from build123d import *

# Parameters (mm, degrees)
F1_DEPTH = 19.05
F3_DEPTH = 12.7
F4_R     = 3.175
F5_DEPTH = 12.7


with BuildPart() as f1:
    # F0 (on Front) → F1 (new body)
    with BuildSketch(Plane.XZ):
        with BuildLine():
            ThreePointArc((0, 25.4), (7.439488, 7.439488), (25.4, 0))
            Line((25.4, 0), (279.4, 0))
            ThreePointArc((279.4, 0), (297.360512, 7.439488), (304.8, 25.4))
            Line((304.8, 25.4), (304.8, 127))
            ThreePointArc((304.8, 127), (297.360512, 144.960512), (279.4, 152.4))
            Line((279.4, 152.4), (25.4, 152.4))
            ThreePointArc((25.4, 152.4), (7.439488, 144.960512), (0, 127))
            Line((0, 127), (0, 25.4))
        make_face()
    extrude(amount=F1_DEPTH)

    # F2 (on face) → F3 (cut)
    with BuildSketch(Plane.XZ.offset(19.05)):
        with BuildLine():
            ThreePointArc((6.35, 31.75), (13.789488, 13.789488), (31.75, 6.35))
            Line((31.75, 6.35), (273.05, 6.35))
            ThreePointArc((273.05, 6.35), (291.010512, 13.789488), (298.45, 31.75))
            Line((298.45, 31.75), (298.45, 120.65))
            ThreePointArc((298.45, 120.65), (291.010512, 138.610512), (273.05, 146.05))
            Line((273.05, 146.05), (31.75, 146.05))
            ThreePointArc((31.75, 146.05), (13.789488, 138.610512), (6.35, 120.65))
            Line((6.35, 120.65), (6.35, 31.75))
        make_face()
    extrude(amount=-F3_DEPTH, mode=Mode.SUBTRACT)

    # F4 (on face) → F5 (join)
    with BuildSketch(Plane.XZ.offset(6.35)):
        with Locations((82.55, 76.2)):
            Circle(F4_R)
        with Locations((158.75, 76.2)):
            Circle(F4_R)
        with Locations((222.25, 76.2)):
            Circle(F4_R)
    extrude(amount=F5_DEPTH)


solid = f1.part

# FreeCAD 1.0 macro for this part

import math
import FreeCAD as App
import Part
import Sketcher

V = App.Vector
Q = App.Units.Quantity

doc = App.newDocument("Part")
body = doc.addObject("PartDesign::Body", "Body")

# Sketch on XZ plane
sketch1 = body.newObject("Sketcher::SketchObject", "Sketch")
sketch1.AttachmentSupport = (doc.getObject("XZ_Plane"), [""])
sketch1.MapMode = "FlatFace"
sketch1.addGeometry(Part.ArcOfCircle(Part.Circle(V(25.400001, 25.400001, 0), V(0, 0, 1), 25.400001), math.radians(-179.999998), math.radians(-90.000002)), False)
sketch1.addGeometry(Part.LineSegment(V(25.4, 0, 0), V(279.4, 0, 0)), False)
sketch1.addGeometry(Part.ArcOfCircle(Part.Circle(V(279.399999, 25.400001, 0), V(0, 0, 1), 25.400001), math.radians(-89.999998), math.radians(-0.000002)), False)
sketch1.addGeometry(Part.LineSegment(V(304.8, 25.4, 0), V(304.8, 127, 0)), False)
sketch1.addGeometry(Part.ArcOfCircle(Part.Circle(V(279.399999, 126.999999, 0), V(0, 0, 1), 25.400001), math.radians(0.000002), math.radians(89.999998)), False)
sketch1.addGeometry(Part.LineSegment(V(279.4, 152.4, 0), V(25.4, 152.4, 0)), False)
sketch1.addGeometry(Part.ArcOfCircle(Part.Circle(V(25.400001, 126.999999, 0), V(0, 0, 1), 25.400001), math.radians(90.000002), math.radians(179.999998)), False)
sketch1.addGeometry(Part.LineSegment(V(0, 127, 0), V(0, 25.4, 0)), False)
sketch1.addConstraint(Sketcher.Constraint("Tangent", 0, 2, 1, 1))
sketch1.addConstraint(Sketcher.Constraint("Tangent", 1, 2, 2, 1))
sketch1.addConstraint(Sketcher.Constraint("Tangent", 2, 2, 3, 1))
sketch1.addConstraint(Sketcher.Constraint("Tangent", 3, 2, 4, 1))
sketch1.addConstraint(Sketcher.Constraint("Tangent", 4, 2, 5, 1))
sketch1.addConstraint(Sketcher.Constraint("Tangent", 5, 2, 6, 1))
sketch1.addConstraint(Sketcher.Constraint("Tangent", 6, 2, 7, 1))
sketch1.addConstraint(Sketcher.Constraint("Tangent", 7, 2, 0, 1))
sketch1.addConstraint(Sketcher.Constraint("Horizontal", 1))
sketch1.addConstraint(Sketcher.Constraint("Vertical", 3))
sketch1.addConstraint(Sketcher.Constraint("Horizontal", 5))
sketch1.addConstraint(Sketcher.Constraint("Vertical", 7))
sketch1.addConstraint(Sketcher.Constraint("Equal", 0, 2))
sketch1.addConstraint(Sketcher.Constraint("Equal", 2, 4))
sketch1.addConstraint(Sketcher.Constraint("Equal", 4, 6))
sketch1.addConstraint(Sketcher.Constraint("PointOnObject", 0, 2, -1))
sketch1.addConstraint(Sketcher.Constraint("PointOnObject", 6, 2, -2))
sketch1.addConstraint(Sketcher.Constraint("Radius", 0, Q("1 in")))
sketch1.addConstraint(Sketcher.Constraint("DistanceX", 1, 1, 1, 2, Q("10 in")))
sketch1.addConstraint(Sketcher.Constraint("DistanceY", 3, 1, 3, 2, Q("4 in")))
pad1 = body.newObject("PartDesign::Pad", "Pad")
pad1.Profile = sketch1
pad1.Length = Q("0.75 in")

# Sketch on XZ plane
sketch2 = body.newObject("Sketcher::SketchObject", "Sketch001")
sketch2.AttachmentSupport = (doc.getObject("XZ_Plane"), [""])
sketch2.MapMode = "FlatFace"
sketch2.AttachmentOffset = App.Placement(V(0, 0, 0.75 * 25.4), App.Rotation())
sketch2.addGeometry(Part.ArcOfCircle(Part.Circle(V(31.750001, 31.750001, 0), V(0, 0, 1), 25.400001), math.radians(-179.999998), math.radians(-90.000002)), False)
sketch2.addGeometry(Part.LineSegment(V(31.75, 6.35, 0), V(273.05, 6.35, 0)), False)
sketch2.addGeometry(Part.ArcOfCircle(Part.Circle(V(273.049999, 31.750001, 0), V(0, 0, 1), 25.400001), math.radians(-89.999998), math.radians(-0.000002)), False)
sketch2.addGeometry(Part.LineSegment(V(298.45, 31.75, 0), V(298.45, 120.65, 0)), False)
sketch2.addGeometry(Part.ArcOfCircle(Part.Circle(V(273.049999, 120.649999, 0), V(0, 0, 1), 25.400001), math.radians(0.000002), math.radians(89.999998)), False)
sketch2.addGeometry(Part.LineSegment(V(273.05, 146.05, 0), V(31.75, 146.05, 0)), False)
sketch2.addGeometry(Part.ArcOfCircle(Part.Circle(V(31.750001, 120.649999, 0), V(0, 0, 1), 25.400001), math.radians(90.000002), math.radians(179.999998)), False)
sketch2.addGeometry(Part.LineSegment(V(6.35, 120.65, 0), V(6.35, 31.75, 0)), False)
sketch2.addConstraint(Sketcher.Constraint("Tangent", 0, 2, 1, 1))
sketch2.addConstraint(Sketcher.Constraint("Tangent", 1, 2, 2, 1))
sketch2.addConstraint(Sketcher.Constraint("Tangent", 2, 2, 3, 1))
sketch2.addConstraint(Sketcher.Constraint("Tangent", 3, 2, 4, 1))
sketch2.addConstraint(Sketcher.Constraint("Tangent", 4, 2, 5, 1))
sketch2.addConstraint(Sketcher.Constraint("Tangent", 5, 2, 6, 1))
sketch2.addConstraint(Sketcher.Constraint("Tangent", 6, 2, 7, 1))
sketch2.addConstraint(Sketcher.Constraint("Tangent", 7, 2, 0, 1))
sketch2.addConstraint(Sketcher.Constraint("Horizontal", 1))
sketch2.addConstraint(Sketcher.Constraint("Vertical", 3))
sketch2.addConstraint(Sketcher.Constraint("Horizontal", 5))
sketch2.addConstraint(Sketcher.Constraint("Vertical", 7))
sketch2.addConstraint(Sketcher.Constraint("Equal", 0, 2))
sketch2.addConstraint(Sketcher.Constraint("Equal", 2, 4))
sketch2.addConstraint(Sketcher.Constraint("Equal", 4, 6))
sketch2.addConstraint(Sketcher.Constraint("Radius", 0, Q("1 in")))
sketch2.addConstraint(Sketcher.Constraint("DistanceX", 1, 1, 1, 2, Q("9.5 in")))
sketch2.addConstraint(Sketcher.Constraint("DistanceY", 3, 1, 3, 2, Q("3.5 in")))
sketch2.addConstraint(Sketcher.Constraint("DistanceX", -1, 1, 0, 3, Q("1.25 in")))
sketch2.addConstraint(Sketcher.Constraint("DistanceY", -1, 1, 0, 3, Q("1.25 in")))
pocket1 = body.newObject("PartDesign::Pocket", "Pocket")
pocket1.Profile = sketch2
pocket1.Length = Q("0.5 in")

# Sketch on XZ plane
sketch3 = body.newObject("Sketcher::SketchObject", "Sketch002")
sketch3.AttachmentSupport = (doc.getObject("XZ_Plane"), [""])
sketch3.MapMode = "FlatFace"
sketch3.AttachmentOffset = App.Placement(V(0, 0, 0.25 * 25.4), App.Rotation())
sketch3.addGeometry(Part.Circle(V(82.55, 76.2, 0), V(0, 0, 1), 3.175), False)
sketch3.addGeometry(Part.Circle(V(158.75, 76.2, 0), V(0, 0, 1), 3.175), False)
sketch3.addGeometry(Part.Circle(V(222.25, 76.2, 0), V(0, 0, 1), 3.175), False)
sketch3.addConstraint(Sketcher.Constraint("Equal", 0, 1))
sketch3.addConstraint(Sketcher.Constraint("Equal", 1, 2))
sketch3.addConstraint(Sketcher.Constraint("Horizontal", 0, 3, 1, 3))
sketch3.addConstraint(Sketcher.Constraint("Horizontal", 1, 3, 2, 3))
sketch3.addConstraint(Sketcher.Constraint("Diameter", 0, Q("0.25 in")))
sketch3.addConstraint(Sketcher.Constraint("DistanceY", -1, 1, 0, 3, Q("3 in")))
sketch3.addConstraint(Sketcher.Constraint("DistanceX", 0, 3, 1, 3, Q("3 in")))
sketch3.addConstraint(Sketcher.Constraint("DistanceX", 1, 3, 2, 3, Q("2.5 in")))
sketch3.addConstraint(Sketcher.Constraint("DistanceX", -1, 1, 0, 3, Q("3.25 in")))
pad2 = body.newObject("PartDesign::Pad", "Pad001")
pad2.Profile = sketch3
pad2.Length = Q("0.5 in")

doc.recompute()
